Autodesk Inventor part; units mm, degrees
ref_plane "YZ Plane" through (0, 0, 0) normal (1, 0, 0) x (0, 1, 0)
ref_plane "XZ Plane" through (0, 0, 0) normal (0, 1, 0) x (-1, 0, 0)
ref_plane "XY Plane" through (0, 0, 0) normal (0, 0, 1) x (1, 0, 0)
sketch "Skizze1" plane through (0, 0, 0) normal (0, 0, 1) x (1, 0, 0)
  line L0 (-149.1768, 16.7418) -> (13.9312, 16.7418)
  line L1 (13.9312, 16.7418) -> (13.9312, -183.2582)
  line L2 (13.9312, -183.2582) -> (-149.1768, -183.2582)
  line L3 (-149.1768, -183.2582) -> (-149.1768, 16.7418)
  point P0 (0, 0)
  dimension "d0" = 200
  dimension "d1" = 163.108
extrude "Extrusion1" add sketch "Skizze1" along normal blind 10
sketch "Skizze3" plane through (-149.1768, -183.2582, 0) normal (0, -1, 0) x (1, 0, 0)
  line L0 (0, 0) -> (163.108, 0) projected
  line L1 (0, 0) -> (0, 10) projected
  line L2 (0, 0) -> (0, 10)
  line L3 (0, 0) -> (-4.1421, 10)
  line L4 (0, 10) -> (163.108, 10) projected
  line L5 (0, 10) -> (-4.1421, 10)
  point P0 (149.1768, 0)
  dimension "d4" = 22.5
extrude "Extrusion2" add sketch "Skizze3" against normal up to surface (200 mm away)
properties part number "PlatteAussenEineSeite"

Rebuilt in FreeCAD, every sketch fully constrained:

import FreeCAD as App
import Part
import Sketcher

V = App.Vector
Q = App.Units.Quantity


def add_polygon(sketch, points):
    """Adds a closed chain of lines whose ends are joined by coincident constraints."""
    first, n = sketch.GeometryCount, len(points)
    for a, b in zip(points, points[1:] + points[:1]):
        sketch.addGeometry(Part.LineSegment(App.Vector(*a, 0), App.Vector(*b, 0)), False)
    for i in range(n):
        sketch.addConstraint(Sketcher.Constraint("Coincident", first + i, 2, first + (i + 1) % n, 1))

doc = App.newDocument("Part")
body = doc.addObject("PartDesign::Body", "Body")

# Sketch on XY plane
sketch1 = body.newObject("Sketcher::SketchObject", "Sketch")
sketch1.AttachmentSupport = (doc.getObject("XY_Plane"), [""])
sketch1.MapMode = "FlatFace"
add_polygon(sketch1, [(13.9312, 16.7418), (-149.1768, 16.7418), (-149.1768, -183.2582), (13.9312, -183.2582)])  # lines 0-3
sketch1.addConstraint(Sketcher.Constraint("Horizontal", 0))
sketch1.addConstraint(Sketcher.Constraint("Vertical", 1))
sketch1.addConstraint(Sketcher.Constraint("Horizontal", 2))
sketch1.addConstraint(Sketcher.Constraint("Vertical", 3))
sketch1.addConstraint(Sketcher.Constraint("DistanceY", 1, 2, 1, 1, Q("200 mm")))
sketch1.addConstraint(Sketcher.Constraint("DistanceX", 0, 2, 0, 1, Q("163.108 mm")))
sketch1.addConstraint(Sketcher.Constraint("DistanceX", 0, 2, -1, 1, Q("149.1768 mm")))
sketch1.addConstraint(Sketcher.Constraint("DistanceY", -1, 1, 0, 2, Q("16.7418 mm")))
pad1 = body.newObject("PartDesign::Pad", "Pad")
pad1.Profile = sketch1
pad1.Length = 10

# Sketch on XZ plane
sketch2 = body.newObject("Sketcher::SketchObject", "Sketch001")
sketch2.AttachmentSupport = (doc.getObject("XZ_Plane"), [""])
sketch2.MapMode = "FlatFace"
sketch2.AttachmentOffset = App.Placement(V(0, 0, 183.2582), App.Rotation())
add_polygon(sketch2, [(-153.3189, 10), (-149.1768, 0), (-149.1768, 10)])  # lines 0-2
sketch2.addConstraint(Sketcher.Constraint("Vertical", 1))
sketch2.addConstraint(Sketcher.Constraint("Horizontal", 2))
sketch2.addConstraint(Sketcher.Constraint("PointOnObject", 0, 2, -1))
sketch2.addConstraint(Sketcher.Constraint("DistanceY", 1, 1, 1, 2, Q("10 mm")))
sketch2.addConstraint(Sketcher.Constraint("Angle", 0, Q("-67.5002 deg")))
sketch2.addConstraint(Sketcher.Constraint("DistanceX", 2, 2, -1, 1, Q("153.319 mm")))
pad2 = body.newObject("PartDesign::Pad", "Pad001")
pad2.Profile = sketch2
pad2.Length = 200
pad2.Reversed = True

doc.recompute()
